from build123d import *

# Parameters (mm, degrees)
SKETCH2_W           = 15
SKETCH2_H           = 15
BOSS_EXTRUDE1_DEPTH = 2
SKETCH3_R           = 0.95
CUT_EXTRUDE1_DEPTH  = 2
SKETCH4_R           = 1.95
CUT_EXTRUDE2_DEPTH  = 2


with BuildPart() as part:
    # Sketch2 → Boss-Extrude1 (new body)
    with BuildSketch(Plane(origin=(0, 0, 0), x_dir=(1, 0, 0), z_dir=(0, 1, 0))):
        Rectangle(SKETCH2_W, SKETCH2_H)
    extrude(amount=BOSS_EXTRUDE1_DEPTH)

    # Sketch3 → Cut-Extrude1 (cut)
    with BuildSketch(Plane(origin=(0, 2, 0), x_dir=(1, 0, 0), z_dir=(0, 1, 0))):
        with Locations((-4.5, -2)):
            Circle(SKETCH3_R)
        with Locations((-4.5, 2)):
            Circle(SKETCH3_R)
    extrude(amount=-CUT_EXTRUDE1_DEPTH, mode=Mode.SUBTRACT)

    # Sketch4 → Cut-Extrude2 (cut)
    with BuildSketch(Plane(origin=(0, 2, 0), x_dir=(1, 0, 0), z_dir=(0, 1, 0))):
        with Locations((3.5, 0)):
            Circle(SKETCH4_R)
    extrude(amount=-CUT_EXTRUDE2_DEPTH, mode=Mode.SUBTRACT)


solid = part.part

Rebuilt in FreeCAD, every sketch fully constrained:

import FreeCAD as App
import Part
import Sketcher

V = App.Vector


def add_polygon(sketch, points):
    """Adds a closed chain of lines whose ends are joined by coincident constraints."""
    first, n = sketch.GeometryCount, len(points)
    for a, b in zip(points, points[1:] + points[:1]):
        sketch.addGeometry(Part.LineSegment(App.Vector(*a, 0), App.Vector(*b, 0)), False)
    for i in range(n):
        sketch.addConstraint(Sketcher.Constraint("Coincident", first + i, 2, first + (i + 1) % n, 1))

doc = App.newDocument("Part")
body = doc.addObject("PartDesign::Body", "Body")

# Sketch on XZ plane
sketch1 = body.newObject("Sketcher::SketchObject", "Sketch")
sketch1.AttachmentSupport = (doc.getObject("XZ_Plane"), [""])
sketch1.MapMode = "FlatFace"
add_polygon(sketch1, [(-8, -8), (-8, 8), (8, 8), (8, -8)])  # lines 0-3
sketch1.addConstraint([
    Sketcher.Constraint("Vertical", 0),
    Sketcher.Constraint("Horizontal", 1),
    Sketcher.Constraint("Vertical", 2),
    Sketcher.Constraint("Horizontal", 3),
    Sketcher.Constraint("Symmetric", 0, 2, 2, 2, -1, 1),
    Sketcher.Constraint("Equal", 3, 0),
    Sketcher.Constraint("DistanceX", 1, 1, 1, 2, 15.0),
])
pad1 = body.newObject("PartDesign::Pad", "Pad")
pad1.Profile = sketch1
pad1.Length = 2
pad1.Reversed = True

# Sketch on XZ plane
sketch2 = body.newObject("Sketcher::SketchObject", "Sketch001")
sketch2.AttachmentSupport = (doc.getObject("XZ_Plane"), [""])
sketch2.MapMode = "FlatFace"
sketch2.AttachmentOffset = App.Placement(V(0, 0, -2), App.Rotation())
sketch2.addGeometry([
    Part.Circle(V(-4.5, 2, 0), V(0, 0, 1), 0.9),
    Part.Circle(V(-4.5, -2, 0), V(0, 0, 1), 0.9),
], False)
sketch2.addConstraint([
    Sketcher.Constraint("Equal", 0, 1),
    Sketcher.Constraint("Symmetric", 0, 3, 1, 3, -1),
    Sketcher.Constraint("Diameter", 0, 1.9),
    Sketcher.Constraint("DistanceY", -1, 1, 0, 3, 2.0),
    Sketcher.Constraint("DistanceX", 0, 3, -1, 1, 4.5),
])
pocket1 = body.newObject("PartDesign::Pocket", "Pocket")
pocket1.Profile = sketch2
pocket1.Length = 2
pocket1.Reversed = True

# Sketch on XZ plane
sketch3 = body.newObject("Sketcher::SketchObject", "Sketch002")
sketch3.AttachmentSupport = (doc.getObject("XZ_Plane"), [""])
sketch3.MapMode = "FlatFace"
sketch3.AttachmentOffset = App.Placement(V(0, 0, -2), App.Rotation())
sketch3.addGeometry(Part.Circle(V(3.5, 0, 0), V(0, 0, 1), 1.9), False)
sketch3.addConstraint([
    Sketcher.Constraint("PointOnObject", 0, 3, -1),
    Sketcher.Constraint("Diameter", 0, 3.9),
    Sketcher.Constraint("DistanceX", -1, 1, 0, 3, 3.5),
])
pocket2 = body.newObject("PartDesign::Pocket", "Pocket001")
pocket2.Profile = sketch3
pocket2.Length = 2
pocket2.Reversed = True

doc.recompute()
